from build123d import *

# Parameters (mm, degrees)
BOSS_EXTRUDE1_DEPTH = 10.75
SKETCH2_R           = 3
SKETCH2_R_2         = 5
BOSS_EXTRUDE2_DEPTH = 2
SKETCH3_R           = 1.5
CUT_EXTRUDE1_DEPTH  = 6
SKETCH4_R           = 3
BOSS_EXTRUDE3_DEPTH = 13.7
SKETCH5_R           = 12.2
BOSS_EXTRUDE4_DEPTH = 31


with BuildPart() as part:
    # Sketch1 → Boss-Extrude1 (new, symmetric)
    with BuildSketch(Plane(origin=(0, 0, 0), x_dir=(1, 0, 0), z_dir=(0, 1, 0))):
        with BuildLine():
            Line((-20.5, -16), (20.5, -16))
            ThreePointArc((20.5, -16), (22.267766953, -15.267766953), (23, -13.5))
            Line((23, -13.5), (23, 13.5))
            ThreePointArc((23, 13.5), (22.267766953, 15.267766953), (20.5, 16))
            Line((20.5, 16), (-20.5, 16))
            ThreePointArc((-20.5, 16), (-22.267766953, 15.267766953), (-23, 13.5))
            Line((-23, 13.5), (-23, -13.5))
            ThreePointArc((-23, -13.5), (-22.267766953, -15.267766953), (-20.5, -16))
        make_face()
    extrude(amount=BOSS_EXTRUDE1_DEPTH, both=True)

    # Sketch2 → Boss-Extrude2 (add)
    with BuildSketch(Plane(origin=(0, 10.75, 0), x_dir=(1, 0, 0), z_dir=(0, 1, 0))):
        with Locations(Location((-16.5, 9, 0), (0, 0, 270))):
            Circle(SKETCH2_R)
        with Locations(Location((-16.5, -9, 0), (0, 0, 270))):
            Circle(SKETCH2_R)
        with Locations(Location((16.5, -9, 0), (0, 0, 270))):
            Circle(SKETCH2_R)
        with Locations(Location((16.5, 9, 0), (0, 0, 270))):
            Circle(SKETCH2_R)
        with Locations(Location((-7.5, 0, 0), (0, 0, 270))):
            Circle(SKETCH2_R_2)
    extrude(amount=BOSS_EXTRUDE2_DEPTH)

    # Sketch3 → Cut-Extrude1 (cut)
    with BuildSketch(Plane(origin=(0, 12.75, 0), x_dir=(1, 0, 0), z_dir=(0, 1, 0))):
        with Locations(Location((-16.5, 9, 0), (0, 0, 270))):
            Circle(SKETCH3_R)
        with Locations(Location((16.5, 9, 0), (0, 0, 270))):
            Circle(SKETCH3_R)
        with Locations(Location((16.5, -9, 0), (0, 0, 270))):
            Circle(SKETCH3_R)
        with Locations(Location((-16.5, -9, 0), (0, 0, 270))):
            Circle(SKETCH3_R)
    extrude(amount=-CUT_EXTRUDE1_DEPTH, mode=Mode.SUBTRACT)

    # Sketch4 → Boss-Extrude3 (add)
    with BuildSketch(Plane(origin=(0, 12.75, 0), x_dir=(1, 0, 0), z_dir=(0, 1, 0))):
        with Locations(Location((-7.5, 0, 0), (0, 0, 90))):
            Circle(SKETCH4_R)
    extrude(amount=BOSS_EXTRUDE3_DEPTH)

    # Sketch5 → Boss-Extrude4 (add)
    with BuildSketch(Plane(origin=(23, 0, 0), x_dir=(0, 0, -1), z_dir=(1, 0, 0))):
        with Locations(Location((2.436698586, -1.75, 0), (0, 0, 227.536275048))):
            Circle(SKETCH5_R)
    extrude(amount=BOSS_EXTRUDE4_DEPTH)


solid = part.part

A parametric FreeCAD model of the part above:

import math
import FreeCAD as App
import Part
import Sketcher

V = App.Vector

doc = App.newDocument("Part")
body = doc.addObject("PartDesign::Body", "Body")

sketch1 = body.newObject("Sketcher::SketchObject", "Sketch")
sketch1.AttachmentSupport = (doc.getObject("XZ_Plane"), [""])
sketch1.MapMode = "FlatFace"
sketch1.addGeometry([
    Part.LineSegment(V(-20.5, 16, 0), V(20.5, 16, 0)),
    Part.ArcOfCircle(Part.Circle(V(20.5, 13.5, 0), V(0, 0, 1), 2.5), math.radians(0), math.radians(90)),
    Part.LineSegment(V(23, 13.5, 0), V(23, -13.5, 0)),
    Part.ArcOfCircle(Part.Circle(V(20.5, -13.5, 0), V(0, 0, 1), 2.5), math.radians(-90), math.radians(0)),
    Part.LineSegment(V(20.5, -16, 0), V(-20.5, -16, 0)),
    Part.ArcOfCircle(Part.Circle(V(-20.5, -13.5, 0), V(0, 0, 1), 2.5), math.radians(180), math.radians(270)),
    Part.LineSegment(V(-23, -13.5, 0), V(-23, 13.5, 0)),
    Part.ArcOfCircle(Part.Circle(V(-20.5, 13.5, 0), V(0, 0, 1), 2.5), math.radians(90), math.radians(180)),
], False)
sketch1.addConstraint([
    Sketcher.Constraint("Tangent", 0, 2, 1, 2),
    Sketcher.Constraint("Tangent", 1, 1, 2, 1),
    Sketcher.Constraint("Tangent", 2, 2, 3, 2),
    Sketcher.Constraint("Tangent", 3, 1, 4, 1),
    Sketcher.Constraint("Tangent", 4, 2, 5, 2),
    Sketcher.Constraint("Tangent", 5, 1, 6, 1),
    Sketcher.Constraint("Tangent", 6, 2, 7, 2),
    Sketcher.Constraint("Tangent", 7, 1, 0, 1),
    Sketcher.Constraint("Horizontal", 0),
    Sketcher.Constraint("Vertical", 2),
    Sketcher.Constraint("Horizontal", 4),
    Sketcher.Constraint("Vertical", 6),
    Sketcher.Constraint("Equal", 1, 3),
    Sketcher.Constraint("Equal", 3, 5),
    Sketcher.Constraint("Equal", 5, 7),
    Sketcher.Constraint("Symmetric", 1, 3, 5, 3, -1, 1),
    Sketcher.Constraint("Radius", 1, 2.5),
    Sketcher.Constraint("DistanceX", 0, 1, 0, 2, 41.0),
    Sketcher.Constraint("DistanceY", 2, 2, 2, 1, 27.0),
])
pad1 = body.newObject("PartDesign::Pad", "Pad")
pad1.Profile = sketch1
pad1.Length = 21.5
pad1.Midplane = True

sketch2 = body.newObject("Sketcher::SketchObject", "Sketch001")
sketch2.AttachmentSupport = (doc.getObject("XZ_Plane"), [""])
sketch2.MapMode = "FlatFace"
sketch2.AttachmentOffset = App.Placement(V(0, 0, -10.75), App.Rotation())
sketch2.addGeometry([
    Part.Circle(V(-16.5, -9, 0), V(0, 0, 1), 3),
    Part.Circle(V(-16.5, 9, 0), V(0, 0, 1), 3),
    Part.Circle(V(16.5, 9, 0), V(0, 0, 1), 3),
    Part.Circle(V(16.5, -9, 0), V(0, 0, 1), 3),
    Part.Circle(V(-7.5, 0, 0), V(0, 0, 1), 5),
], False)
sketch2.addConstraint([
    Sketcher.Constraint("Equal", 0, 1),
    Sketcher.Constraint("Equal", 1, 2),
    Sketcher.Constraint("Equal", 2, 3),
    Sketcher.Constraint("Symmetric", 0, 3, 2, 3, -1, 1),
    Sketcher.Constraint("Symmetric", 1, 3, 3, 3, -1, 1),
    Sketcher.Constraint("Symmetric", 1, 3, 2, 3, -2),
    Sketcher.Constraint("PointOnObject", 4, 3, -1),
    Sketcher.Constraint("Diameter", 0, 6.0),
    Sketcher.Constraint("Diameter", 4, 10.0),
    Sketcher.Constraint("DistanceY", 0, 3, -1, 1, 9.0),
    Sketcher.Constraint("DistanceX", 1, 3, 2, 3, 33.0),
    Sketcher.Constraint("DistanceX", 0, 3, 4, 3, 9.0),
])
pad2 = body.newObject("PartDesign::Pad", "Pad001")
pad2.Profile = sketch2
pad2.Length = 2
pad2.Reversed = True

sketch3 = body.newObject("Sketcher::SketchObject", "Sketch002")
sketch3.AttachmentSupport = (doc.getObject("XZ_Plane"), [""])
sketch3.MapMode = "FlatFace"
sketch3.AttachmentOffset = App.Placement(V(0, 0, -12.75), App.Rotation())
sketch3.addGeometry([
    Part.Circle(V(-16.5, -9, 0), V(0, 0, 1), 1.5),
    Part.Circle(V(16.5, -9, 0), V(0, 0, 1), 1.5),
    Part.Circle(V(16.5, 9, 0), V(0, 0, 1), 1.5),
    Part.Circle(V(-16.5, 9, 0), V(0, 0, 1), 1.5),
], False)
sketch3.addConstraint([
    Sketcher.Constraint("Equal", 0, 1),
    Sketcher.Constraint("Equal", 1, 2),
    Sketcher.Constraint("Equal", 2, 3),
    Sketcher.Constraint("Symmetric", 0, 3, 2, 3, -1, 1),
    Sketcher.Constraint("Symmetric", 1, 3, 3, 3, -1, 1),
    Sketcher.Constraint("Symmetric", 0, 3, 1, 3, -2),
    Sketcher.Constraint("Diameter", 0, 3.0),
    Sketcher.Constraint("DistanceY", 0, 3, -1, 1, 9.0),
    Sketcher.Constraint("DistanceX", 0, 3, 1, 3, 33.0),
])
pocket1 = body.newObject("PartDesign::Pocket", "Pocket")
pocket1.Profile = sketch3
pocket1.Length = 6
pocket1.Reversed = True

sketch4 = body.newObject("Sketcher::SketchObject", "Sketch003")
sketch4.AttachmentSupport = (doc.getObject("XZ_Plane"), [""])
sketch4.MapMode = "FlatFace"
sketch4.AttachmentOffset = App.Placement(V(0, 0, -12.75), App.Rotation())
sketch4.addGeometry(Part.Circle(V(-7.5, 0, 0), V(0, 0, 1), 3), False)
sketch4.addConstraint([
    Sketcher.Constraint("PointOnObject", 0, 3, -1),
    Sketcher.Constraint("Diameter", 0, 6.0),
    Sketcher.Constraint("DistanceX", 0, 3, -1, 1, 7.5),
])
pad3 = body.newObject("PartDesign::Pad", "Pad002")
pad3.Profile = sketch4
pad3.Length = 13.7
pad3.Reversed = True

sketch5 = body.newObject("Sketcher::SketchObject", "Sketch004")
sketch5.AttachmentSupport = (doc.getObject("YZ_Plane"), [""])
sketch5.MapMode = "FlatFace"
sketch5.AttachmentOffset = App.Placement(V(0, 0, 23), App.Rotation())
sketch5.addGeometry(Part.Circle(V(-2, -2, 0), V(0, 0, 1), 12), False)
sketch5.addConstraint([
    Sketcher.Constraint("Diameter", 0, 24.4),
    Sketcher.Constraint("DistanceX", 0, 3, -1, 1, 1.75),
    Sketcher.Constraint("DistanceY", 0, 3, -1, 1, 2.436699),
])
pad4 = body.newObject("PartDesign::Pad", "Pad003")
pad4.Profile = sketch5
pad4.Length = 31

doc.recompute()
